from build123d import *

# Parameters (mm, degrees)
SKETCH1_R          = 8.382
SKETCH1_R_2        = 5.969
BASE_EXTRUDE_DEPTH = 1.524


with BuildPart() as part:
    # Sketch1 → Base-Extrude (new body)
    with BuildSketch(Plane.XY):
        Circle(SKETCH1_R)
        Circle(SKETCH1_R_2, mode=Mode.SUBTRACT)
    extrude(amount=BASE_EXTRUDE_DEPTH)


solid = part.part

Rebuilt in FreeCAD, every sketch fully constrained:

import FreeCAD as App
import Part
import Sketcher
Q = App.Units.Quantity

doc = App.newDocument("Part")
body = doc.addObject("PartDesign::Body", "Body")

# Sketch on XY plane
sketch1 = body.newObject("Sketcher::SketchObject", "Sketch")
sketch1.AttachmentSupport = (doc.getObject("XY_Plane"), [""])
sketch1.MapMode = "FlatFace"
sketch1.addGeometry([
    Part.Circle(App.Vector(0, 0, 0), App.Vector(0, 0, 1), 8.382),
    Part.Circle(App.Vector(0, 0, 0), App.Vector(0, 0, 1), 5.969),
], False)
sketch1.addConstraint([
    Sketcher.Constraint("Coincident", 0, 3, -1, 1),
    Sketcher.Constraint("Coincident", 1, 3, -1, 1),
    Sketcher.Constraint("Diameter", 0, Q("0.66 in")),
    Sketcher.Constraint("Diameter", 1, Q("0.47 in")),
])
pad1 = body.newObject("PartDesign::Pad", "Pad")
pad1.Profile = sketch1
pad1.Length = Q("0.06 in")

doc.recompute()
